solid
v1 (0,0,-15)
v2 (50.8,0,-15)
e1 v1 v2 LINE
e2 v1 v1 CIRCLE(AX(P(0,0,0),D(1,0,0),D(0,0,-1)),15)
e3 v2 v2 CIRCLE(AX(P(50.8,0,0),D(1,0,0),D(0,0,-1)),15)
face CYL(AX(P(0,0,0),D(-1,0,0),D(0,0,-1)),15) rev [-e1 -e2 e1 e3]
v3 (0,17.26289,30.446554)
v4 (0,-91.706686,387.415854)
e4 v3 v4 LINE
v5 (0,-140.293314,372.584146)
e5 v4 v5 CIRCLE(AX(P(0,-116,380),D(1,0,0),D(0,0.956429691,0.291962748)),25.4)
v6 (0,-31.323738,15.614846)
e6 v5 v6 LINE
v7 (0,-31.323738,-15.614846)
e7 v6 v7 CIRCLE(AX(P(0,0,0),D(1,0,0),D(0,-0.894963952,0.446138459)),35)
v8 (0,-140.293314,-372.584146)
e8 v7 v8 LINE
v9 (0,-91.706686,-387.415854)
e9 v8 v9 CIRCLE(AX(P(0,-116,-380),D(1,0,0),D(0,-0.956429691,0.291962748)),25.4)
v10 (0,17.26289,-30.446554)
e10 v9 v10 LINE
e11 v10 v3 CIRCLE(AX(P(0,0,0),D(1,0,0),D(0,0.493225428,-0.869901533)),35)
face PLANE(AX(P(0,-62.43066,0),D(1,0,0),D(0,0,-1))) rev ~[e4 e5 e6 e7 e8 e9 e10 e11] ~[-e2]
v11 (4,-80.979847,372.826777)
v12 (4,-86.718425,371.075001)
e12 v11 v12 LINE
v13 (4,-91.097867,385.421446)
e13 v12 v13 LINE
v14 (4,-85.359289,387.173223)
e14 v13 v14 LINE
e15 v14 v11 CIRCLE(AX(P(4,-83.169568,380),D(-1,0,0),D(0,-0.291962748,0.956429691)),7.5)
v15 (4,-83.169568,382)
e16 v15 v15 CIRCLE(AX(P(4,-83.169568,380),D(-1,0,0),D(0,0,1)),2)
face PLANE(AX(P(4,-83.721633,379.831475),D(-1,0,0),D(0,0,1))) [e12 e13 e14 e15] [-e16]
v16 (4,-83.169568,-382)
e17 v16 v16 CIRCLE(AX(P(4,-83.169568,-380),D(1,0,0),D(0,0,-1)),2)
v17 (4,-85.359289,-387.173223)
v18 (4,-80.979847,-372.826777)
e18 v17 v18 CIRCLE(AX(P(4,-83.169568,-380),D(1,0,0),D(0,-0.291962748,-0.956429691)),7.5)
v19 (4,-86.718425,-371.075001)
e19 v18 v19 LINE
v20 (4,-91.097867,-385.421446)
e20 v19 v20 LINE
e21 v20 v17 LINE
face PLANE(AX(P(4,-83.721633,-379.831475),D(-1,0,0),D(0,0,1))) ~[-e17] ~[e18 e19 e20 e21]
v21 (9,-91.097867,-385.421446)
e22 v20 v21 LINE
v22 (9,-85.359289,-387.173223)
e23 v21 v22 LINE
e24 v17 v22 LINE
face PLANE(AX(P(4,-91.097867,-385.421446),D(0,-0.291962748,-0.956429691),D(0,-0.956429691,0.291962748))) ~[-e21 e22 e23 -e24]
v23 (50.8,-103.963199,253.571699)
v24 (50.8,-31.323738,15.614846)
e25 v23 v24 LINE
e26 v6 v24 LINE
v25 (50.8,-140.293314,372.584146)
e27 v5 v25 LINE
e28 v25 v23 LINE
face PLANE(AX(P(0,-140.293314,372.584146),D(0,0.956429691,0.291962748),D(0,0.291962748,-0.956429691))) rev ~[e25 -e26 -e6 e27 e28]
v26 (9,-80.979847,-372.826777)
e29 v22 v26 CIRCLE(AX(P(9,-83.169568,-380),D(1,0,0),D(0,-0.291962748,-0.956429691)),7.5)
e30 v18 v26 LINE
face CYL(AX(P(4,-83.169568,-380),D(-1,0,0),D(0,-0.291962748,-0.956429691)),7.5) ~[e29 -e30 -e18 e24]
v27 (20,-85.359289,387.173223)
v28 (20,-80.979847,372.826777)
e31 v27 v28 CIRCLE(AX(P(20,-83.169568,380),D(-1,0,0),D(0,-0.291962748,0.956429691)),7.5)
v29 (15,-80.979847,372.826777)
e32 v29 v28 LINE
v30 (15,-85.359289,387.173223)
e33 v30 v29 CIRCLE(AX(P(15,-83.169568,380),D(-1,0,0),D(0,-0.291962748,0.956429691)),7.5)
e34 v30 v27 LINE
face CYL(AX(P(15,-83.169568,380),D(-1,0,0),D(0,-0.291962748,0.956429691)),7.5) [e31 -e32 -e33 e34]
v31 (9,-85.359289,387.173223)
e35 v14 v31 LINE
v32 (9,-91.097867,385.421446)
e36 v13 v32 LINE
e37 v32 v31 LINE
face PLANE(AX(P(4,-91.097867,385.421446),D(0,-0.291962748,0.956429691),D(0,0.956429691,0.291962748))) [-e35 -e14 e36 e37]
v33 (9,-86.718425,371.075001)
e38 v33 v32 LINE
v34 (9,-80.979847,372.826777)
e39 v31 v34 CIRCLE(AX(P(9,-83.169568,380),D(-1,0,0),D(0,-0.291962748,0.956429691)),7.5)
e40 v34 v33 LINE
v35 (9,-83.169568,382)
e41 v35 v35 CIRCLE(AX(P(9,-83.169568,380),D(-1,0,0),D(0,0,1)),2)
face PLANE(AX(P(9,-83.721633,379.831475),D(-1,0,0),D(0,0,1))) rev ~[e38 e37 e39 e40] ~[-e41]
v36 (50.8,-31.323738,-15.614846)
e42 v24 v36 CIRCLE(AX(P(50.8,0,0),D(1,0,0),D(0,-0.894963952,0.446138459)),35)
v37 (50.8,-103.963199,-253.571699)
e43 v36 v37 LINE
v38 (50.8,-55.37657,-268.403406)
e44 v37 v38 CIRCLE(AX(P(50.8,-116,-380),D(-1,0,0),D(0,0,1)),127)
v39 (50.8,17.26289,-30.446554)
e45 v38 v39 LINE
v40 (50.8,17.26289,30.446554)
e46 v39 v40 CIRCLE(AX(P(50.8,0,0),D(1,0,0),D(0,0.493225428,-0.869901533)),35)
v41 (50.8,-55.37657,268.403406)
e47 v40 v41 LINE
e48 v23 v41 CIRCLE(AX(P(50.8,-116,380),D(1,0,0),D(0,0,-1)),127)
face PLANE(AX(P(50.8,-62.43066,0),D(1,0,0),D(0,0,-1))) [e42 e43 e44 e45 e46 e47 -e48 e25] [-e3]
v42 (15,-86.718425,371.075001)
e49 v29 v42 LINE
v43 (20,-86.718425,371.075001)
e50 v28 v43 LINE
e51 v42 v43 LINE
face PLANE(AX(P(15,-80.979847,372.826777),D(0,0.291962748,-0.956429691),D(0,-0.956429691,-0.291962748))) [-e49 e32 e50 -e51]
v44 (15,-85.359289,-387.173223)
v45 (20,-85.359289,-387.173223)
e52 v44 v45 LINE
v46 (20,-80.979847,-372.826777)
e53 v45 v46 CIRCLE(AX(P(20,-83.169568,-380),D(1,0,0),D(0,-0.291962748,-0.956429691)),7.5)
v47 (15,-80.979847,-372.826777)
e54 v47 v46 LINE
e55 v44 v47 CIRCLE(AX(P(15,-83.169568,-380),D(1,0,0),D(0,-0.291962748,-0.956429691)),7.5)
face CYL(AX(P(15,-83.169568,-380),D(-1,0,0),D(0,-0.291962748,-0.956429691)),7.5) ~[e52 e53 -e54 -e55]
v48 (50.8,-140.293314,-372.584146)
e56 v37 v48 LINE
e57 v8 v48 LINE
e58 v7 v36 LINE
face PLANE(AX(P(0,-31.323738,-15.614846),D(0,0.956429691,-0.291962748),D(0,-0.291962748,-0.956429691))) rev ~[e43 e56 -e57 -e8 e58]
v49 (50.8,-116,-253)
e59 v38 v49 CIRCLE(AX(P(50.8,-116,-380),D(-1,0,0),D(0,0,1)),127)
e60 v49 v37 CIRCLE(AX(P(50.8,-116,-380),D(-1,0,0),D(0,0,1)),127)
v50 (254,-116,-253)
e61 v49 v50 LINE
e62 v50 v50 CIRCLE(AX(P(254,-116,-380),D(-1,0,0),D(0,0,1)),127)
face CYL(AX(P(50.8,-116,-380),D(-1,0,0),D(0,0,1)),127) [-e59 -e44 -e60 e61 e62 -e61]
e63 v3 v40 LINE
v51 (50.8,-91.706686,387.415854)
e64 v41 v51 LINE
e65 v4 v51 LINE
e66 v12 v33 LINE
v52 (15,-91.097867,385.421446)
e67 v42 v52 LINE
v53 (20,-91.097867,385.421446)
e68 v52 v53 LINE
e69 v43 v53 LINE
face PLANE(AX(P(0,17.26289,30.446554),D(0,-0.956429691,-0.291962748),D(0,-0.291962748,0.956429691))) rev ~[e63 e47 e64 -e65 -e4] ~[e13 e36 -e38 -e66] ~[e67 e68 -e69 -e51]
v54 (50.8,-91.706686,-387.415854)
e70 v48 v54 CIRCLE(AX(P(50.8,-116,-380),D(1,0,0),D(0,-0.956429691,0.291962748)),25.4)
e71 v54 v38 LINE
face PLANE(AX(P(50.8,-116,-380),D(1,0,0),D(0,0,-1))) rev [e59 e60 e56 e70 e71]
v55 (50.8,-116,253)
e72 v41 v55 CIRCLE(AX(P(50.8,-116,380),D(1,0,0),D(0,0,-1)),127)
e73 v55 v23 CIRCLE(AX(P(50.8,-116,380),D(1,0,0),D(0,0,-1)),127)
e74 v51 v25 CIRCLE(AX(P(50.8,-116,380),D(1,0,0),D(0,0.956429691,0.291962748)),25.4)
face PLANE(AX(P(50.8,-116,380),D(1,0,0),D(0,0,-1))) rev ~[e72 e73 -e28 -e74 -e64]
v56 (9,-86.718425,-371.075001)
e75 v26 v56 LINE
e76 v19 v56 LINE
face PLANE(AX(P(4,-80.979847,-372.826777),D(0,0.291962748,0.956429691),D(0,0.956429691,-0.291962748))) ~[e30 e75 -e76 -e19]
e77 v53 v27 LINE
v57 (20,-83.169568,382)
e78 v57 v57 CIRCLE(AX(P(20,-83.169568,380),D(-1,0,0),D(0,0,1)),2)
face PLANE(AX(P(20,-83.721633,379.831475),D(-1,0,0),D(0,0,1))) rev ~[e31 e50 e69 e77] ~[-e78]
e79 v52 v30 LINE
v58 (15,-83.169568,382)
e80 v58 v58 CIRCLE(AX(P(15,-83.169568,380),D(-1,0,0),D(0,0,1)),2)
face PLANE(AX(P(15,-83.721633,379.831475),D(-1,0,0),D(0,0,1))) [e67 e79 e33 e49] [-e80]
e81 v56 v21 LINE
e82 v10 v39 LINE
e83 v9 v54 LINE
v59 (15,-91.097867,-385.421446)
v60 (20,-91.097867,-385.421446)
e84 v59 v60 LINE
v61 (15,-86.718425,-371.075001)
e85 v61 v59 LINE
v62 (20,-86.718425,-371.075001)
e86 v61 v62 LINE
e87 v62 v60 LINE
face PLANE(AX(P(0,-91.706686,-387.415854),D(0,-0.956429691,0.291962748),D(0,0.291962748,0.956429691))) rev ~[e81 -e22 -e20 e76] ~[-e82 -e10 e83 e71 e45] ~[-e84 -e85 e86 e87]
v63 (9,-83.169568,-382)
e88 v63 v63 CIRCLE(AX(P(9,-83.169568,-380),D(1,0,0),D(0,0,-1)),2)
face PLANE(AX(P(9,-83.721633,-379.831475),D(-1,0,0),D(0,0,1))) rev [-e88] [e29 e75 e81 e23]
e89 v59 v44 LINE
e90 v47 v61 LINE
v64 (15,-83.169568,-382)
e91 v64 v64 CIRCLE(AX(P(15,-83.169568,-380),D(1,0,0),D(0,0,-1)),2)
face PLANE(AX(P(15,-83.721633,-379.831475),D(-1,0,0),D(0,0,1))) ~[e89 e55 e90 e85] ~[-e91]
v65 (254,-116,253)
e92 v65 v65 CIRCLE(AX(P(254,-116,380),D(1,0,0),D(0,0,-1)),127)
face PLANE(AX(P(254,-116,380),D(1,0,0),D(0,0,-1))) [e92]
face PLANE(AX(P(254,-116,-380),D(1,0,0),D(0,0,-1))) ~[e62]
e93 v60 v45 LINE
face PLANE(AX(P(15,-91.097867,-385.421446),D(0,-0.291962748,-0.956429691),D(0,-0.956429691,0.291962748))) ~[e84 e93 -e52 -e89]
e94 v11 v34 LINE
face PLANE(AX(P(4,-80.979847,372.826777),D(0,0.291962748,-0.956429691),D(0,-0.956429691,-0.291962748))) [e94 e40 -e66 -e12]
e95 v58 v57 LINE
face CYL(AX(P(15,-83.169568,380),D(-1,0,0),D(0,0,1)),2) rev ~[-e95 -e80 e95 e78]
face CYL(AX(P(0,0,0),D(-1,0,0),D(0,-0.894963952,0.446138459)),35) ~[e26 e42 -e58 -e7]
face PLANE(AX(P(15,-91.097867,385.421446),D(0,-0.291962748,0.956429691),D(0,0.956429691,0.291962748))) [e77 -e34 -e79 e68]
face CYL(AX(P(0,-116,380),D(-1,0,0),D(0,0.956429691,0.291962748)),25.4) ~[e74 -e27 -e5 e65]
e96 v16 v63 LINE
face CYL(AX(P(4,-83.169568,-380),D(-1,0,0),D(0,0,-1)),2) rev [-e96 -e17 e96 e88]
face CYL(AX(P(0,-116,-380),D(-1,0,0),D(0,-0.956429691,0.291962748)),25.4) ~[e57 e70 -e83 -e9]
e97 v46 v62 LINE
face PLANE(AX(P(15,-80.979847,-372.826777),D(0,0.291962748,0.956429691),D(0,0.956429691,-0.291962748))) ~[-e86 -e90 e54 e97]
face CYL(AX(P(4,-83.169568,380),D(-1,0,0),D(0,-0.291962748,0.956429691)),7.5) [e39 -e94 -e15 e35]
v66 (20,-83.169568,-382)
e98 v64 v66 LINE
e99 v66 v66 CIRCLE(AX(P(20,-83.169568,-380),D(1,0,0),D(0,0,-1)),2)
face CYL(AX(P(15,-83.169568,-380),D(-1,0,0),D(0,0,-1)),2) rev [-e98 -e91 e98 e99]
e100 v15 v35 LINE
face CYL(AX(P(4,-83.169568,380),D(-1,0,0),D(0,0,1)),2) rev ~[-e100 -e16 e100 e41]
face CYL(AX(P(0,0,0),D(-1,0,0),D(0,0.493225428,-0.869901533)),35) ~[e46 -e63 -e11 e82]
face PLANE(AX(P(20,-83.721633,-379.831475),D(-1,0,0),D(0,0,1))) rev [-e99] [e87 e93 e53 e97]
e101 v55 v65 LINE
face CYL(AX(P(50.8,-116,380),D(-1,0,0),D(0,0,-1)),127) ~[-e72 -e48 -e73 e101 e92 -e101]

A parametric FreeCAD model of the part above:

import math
import FreeCAD as App
import Part
import Sketcher

V = App.Vector

doc = App.newDocument("Part")
body = doc.addObject("PartDesign::Body", "Body")

# Sketch on YZ plane
sketch1 = body.newObject("Sketcher::SketchObject", "Sketch")
sketch1.AttachmentSupport = (doc.getObject("YZ_Plane"), [""])
sketch1.MapMode = "FlatFace"
sketch1.addGeometry([
    Part.ArcOfCircle(Part.Circle(V(-116, 380, 0), V(0, 0, 1), 25.4), math.radians(16.975499), math.radians(196.975499)),  # 0
    Part.LineSegment(V(-140.293314, 372.584146, 0), V(-31.323738, 15.614846, 0)),  # 1
    Part.ArcOfCircle(Part.Circle(V(0, 0, 0), V(0, 0, 1), 35), math.radians(153.5038), math.radians(206.4962)),  # 2
    Part.LineSegment(V(-31.323738, -15.614846, 0), V(-140.293314, -372.584146, 0)),  # 3
    Part.ArcOfCircle(Part.Circle(V(-116, -380, 0), V(0, 0, 1), 25.4), math.radians(163.024501), math.radians(343.024501)),  # 4
    Part.LineSegment(V(-91.706686, -387.415854, 0), V(17.26289, -30.446554, 0)),  # 5
    Part.ArcOfCircle(Part.Circle(V(0, 0, 0), V(0, 0, 1), 35), math.radians(-60.447199), math.radians(60.447199)),  # 6
    Part.LineSegment(V(17.26289, 30.446554, 0), V(-91.706686, 387.415854, 0)),  # 7
    Part.Circle(V(0, 0, 0), V(0, 0, 1), 15),  # 8
], False)
sketch1.addConstraint([
    Sketcher.Constraint("Tangent", 0, 2, 1, 1),
    Sketcher.Constraint("Coincident", 1, 2, 2, 1),
    Sketcher.Constraint("Coincident", 2, 2, 3, 1),
    Sketcher.Constraint("Tangent", 3, 2, 4, 1),
    Sketcher.Constraint("Tangent", 4, 2, 5, 1),
    Sketcher.Constraint("Coincident", 5, 2, 6, 1),
    Sketcher.Constraint("Coincident", 6, 2, 7, 1),
    Sketcher.Constraint("Tangent", 7, 2, 0, 1),
    Sketcher.Constraint("Coincident", 2, 3, -1, 1),
    Sketcher.Constraint("Coincident", 6, 3, -1, 1),
    Sketcher.Constraint("Coincident", 8, 3, -1, 1),
    Sketcher.Constraint("Equal", 0, 4),
    Sketcher.Constraint("Equal", 2, 6),
    Sketcher.Constraint("Symmetric", 0, 3, 4, 3, -1),
    Sketcher.Constraint("Parallel", 3, 5),
    Sketcher.Constraint("Parallel", 1, 7),
    Sketcher.Constraint("Vertical", 1, 2, 2, 2),
    Sketcher.Constraint("Equal", 3, 5),
    Sketcher.Constraint("Diameter", 8, 30.0),
    Sketcher.Constraint("Radius", 2, 35.0),
    Sketcher.Constraint("Radius", 0, 25.4),
    Sketcher.Constraint("DistanceX", 0, 3, -1, 1, 116.0),
    Sketcher.Constraint("DistanceY", -1, 1, 0, 3, 380.0),
])
pad1 = body.newObject("PartDesign::Pad", "Pad")
pad1.Profile = sketch1
pad1.Length = 50.8

# Sketch on YZ plane
sketch2 = body.newObject("Sketcher::SketchObject", "Sketch001")
sketch2.AttachmentSupport = (doc.getObject("YZ_Plane"), [""])
sketch2.MapMode = "FlatFace"
sketch2.AttachmentOffset = App.Placement(V(0, 0, 50.8), App.Rotation())
sketch2.addGeometry(Part.Circle(V(-116, 380, 0), V(0, 0, 1), 127), False)
sketch2.addConstraint([
    Sketcher.Constraint("Diameter", 0, 254.0),
    Sketcher.Constraint("DistanceX", 0, 3, -1, 1, 116.0),
    Sketcher.Constraint("DistanceY", -1, 1, 0, 3, 380.0),
])
pad2 = body.newObject("PartDesign::Pad", "Pad001")
pad2.Profile = sketch2
pad2.Length = 203.2

# Sketch on YZ plane
sketch3 = body.newObject("Sketcher::SketchObject", "Sketch002")
sketch3.AttachmentSupport = (doc.getObject("YZ_Plane"), [""])
sketch3.MapMode = "FlatFace"
sketch3.AttachmentOffset = App.Placement(V(0, 0, 4), App.Rotation())
sketch3.addGeometry([
    Part.LineSegment(V(-80.979847, 372.826777, 0), V(-86.718425, 371.075001, 0)),  # 0
    Part.LineSegment(V(-86.718425, 371.075001, 0), V(-91.097867, 385.421446, 0)),  # 1
    Part.LineSegment(V(-91.097867, 385.421446, 0), V(-85.359289, 387.173223, 0)),  # 2
    Part.ArcOfCircle(Part.Circle(V(-83.169568, 380, 0), V(0, 0, 1), 7.5), math.radians(-73.024501), math.radians(106.975499)),  # 3
    Part.Circle(V(-83.169568, 380, 0), V(0, 0, 1), 2),  # 4
], False)
sketch3.addConstraint([
    Sketcher.Constraint("Coincident", 0, 2, 1, 1),
    Sketcher.Constraint("Coincident", 1, 2, 2, 1),
    Sketcher.Constraint("Tangent", 2, 2, 3, 2),
    Sketcher.Constraint("Tangent", 3, 1, 0, 1),
    Sketcher.Constraint("Coincident", 4, 3, 3, 3),
    Sketcher.Constraint("Perpendicular", 0, 1),
    Sketcher.Constraint("Perpendicular", 1, 2),
    Sketcher.Constraint("Diameter", 4, 4.0),
    Sketcher.Constraint("Radius", 3, 7.5),
    Sketcher.Constraint("Distance", 0, 6.0),
    Sketcher.Constraint("DistanceY", -1, 1, 3, 3, 380.0),
    Sketcher.Constraint("DistanceY", -1, 1, 0, 2, 371.075001),
    Sketcher.Constraint("DistanceX", 2, 2, -1, 1, 85.359289),
])
pad3 = body.newObject("PartDesign::Pad", "Pad002")
pad3.Profile = sketch3
pad3.Length = 5

# Sketch on YZ plane
sketch4 = body.newObject("Sketcher::SketchObject", "Sketch003")
sketch4.AttachmentSupport = (doc.getObject("YZ_Plane"), [""])
sketch4.MapMode = "FlatFace"
sketch4.AttachmentOffset = App.Placement(V(0, 0, 15), App.Rotation())
sketch4.addGeometry([
    Part.LineSegment(V(-80.979847, 372.826777, 0), V(-86.718425, 371.075001, 0)),  # 0
    Part.LineSegment(V(-86.718425, 371.075001, 0), V(-91.097867, 385.421446, 0)),  # 1
    Part.LineSegment(V(-91.097867, 385.421446, 0), V(-85.359289, 387.173223, 0)),  # 2
    Part.ArcOfCircle(Part.Circle(V(-83.169568, 380, 0), V(0, 0, 1), 7.5), math.radians(-73.024501), math.radians(106.975499)),  # 3
    Part.Circle(V(-83.169568, 380, 0), V(0, 0, 1), 2),  # 4
], False)
sketch4.addConstraint([
    Sketcher.Constraint("Coincident", 0, 2, 1, 1),
    Sketcher.Constraint("Coincident", 1, 2, 2, 1),
    Sketcher.Constraint("Tangent", 2, 2, 3, 2),
    Sketcher.Constraint("Tangent", 3, 1, 0, 1),
    Sketcher.Constraint("Coincident", 4, 3, 3, 3),
    Sketcher.Constraint("Perpendicular", 0, 1),
    Sketcher.Constraint("Perpendicular", 1, 2),
    Sketcher.Constraint("Diameter", 4, 4.0),
    Sketcher.Constraint("Radius", 3, 7.5),
    Sketcher.Constraint("Distance", 0, 6.0),
    Sketcher.Constraint("DistanceY", -1, 1, 3, 3, 380.0),
    Sketcher.Constraint("DistanceY", -1, 1, 0, 2, 371.075001),
    Sketcher.Constraint("DistanceX", 2, 2, -1, 1, 85.359289),
])
pad4 = body.newObject("PartDesign::Pad", "Pad003")
pad4.Profile = sketch4
pad4.Length = 5
doc.recompute()

mirrored = body.newObject("PartDesign::Mirrored", "Mirrored")
mirrored.Originals = [pad2, pad3, pad4]
mirrored.MirrorPlane = (doc.getObject("XY_Plane"), [""])
body.Tip = mirrored

doc.recompute()
